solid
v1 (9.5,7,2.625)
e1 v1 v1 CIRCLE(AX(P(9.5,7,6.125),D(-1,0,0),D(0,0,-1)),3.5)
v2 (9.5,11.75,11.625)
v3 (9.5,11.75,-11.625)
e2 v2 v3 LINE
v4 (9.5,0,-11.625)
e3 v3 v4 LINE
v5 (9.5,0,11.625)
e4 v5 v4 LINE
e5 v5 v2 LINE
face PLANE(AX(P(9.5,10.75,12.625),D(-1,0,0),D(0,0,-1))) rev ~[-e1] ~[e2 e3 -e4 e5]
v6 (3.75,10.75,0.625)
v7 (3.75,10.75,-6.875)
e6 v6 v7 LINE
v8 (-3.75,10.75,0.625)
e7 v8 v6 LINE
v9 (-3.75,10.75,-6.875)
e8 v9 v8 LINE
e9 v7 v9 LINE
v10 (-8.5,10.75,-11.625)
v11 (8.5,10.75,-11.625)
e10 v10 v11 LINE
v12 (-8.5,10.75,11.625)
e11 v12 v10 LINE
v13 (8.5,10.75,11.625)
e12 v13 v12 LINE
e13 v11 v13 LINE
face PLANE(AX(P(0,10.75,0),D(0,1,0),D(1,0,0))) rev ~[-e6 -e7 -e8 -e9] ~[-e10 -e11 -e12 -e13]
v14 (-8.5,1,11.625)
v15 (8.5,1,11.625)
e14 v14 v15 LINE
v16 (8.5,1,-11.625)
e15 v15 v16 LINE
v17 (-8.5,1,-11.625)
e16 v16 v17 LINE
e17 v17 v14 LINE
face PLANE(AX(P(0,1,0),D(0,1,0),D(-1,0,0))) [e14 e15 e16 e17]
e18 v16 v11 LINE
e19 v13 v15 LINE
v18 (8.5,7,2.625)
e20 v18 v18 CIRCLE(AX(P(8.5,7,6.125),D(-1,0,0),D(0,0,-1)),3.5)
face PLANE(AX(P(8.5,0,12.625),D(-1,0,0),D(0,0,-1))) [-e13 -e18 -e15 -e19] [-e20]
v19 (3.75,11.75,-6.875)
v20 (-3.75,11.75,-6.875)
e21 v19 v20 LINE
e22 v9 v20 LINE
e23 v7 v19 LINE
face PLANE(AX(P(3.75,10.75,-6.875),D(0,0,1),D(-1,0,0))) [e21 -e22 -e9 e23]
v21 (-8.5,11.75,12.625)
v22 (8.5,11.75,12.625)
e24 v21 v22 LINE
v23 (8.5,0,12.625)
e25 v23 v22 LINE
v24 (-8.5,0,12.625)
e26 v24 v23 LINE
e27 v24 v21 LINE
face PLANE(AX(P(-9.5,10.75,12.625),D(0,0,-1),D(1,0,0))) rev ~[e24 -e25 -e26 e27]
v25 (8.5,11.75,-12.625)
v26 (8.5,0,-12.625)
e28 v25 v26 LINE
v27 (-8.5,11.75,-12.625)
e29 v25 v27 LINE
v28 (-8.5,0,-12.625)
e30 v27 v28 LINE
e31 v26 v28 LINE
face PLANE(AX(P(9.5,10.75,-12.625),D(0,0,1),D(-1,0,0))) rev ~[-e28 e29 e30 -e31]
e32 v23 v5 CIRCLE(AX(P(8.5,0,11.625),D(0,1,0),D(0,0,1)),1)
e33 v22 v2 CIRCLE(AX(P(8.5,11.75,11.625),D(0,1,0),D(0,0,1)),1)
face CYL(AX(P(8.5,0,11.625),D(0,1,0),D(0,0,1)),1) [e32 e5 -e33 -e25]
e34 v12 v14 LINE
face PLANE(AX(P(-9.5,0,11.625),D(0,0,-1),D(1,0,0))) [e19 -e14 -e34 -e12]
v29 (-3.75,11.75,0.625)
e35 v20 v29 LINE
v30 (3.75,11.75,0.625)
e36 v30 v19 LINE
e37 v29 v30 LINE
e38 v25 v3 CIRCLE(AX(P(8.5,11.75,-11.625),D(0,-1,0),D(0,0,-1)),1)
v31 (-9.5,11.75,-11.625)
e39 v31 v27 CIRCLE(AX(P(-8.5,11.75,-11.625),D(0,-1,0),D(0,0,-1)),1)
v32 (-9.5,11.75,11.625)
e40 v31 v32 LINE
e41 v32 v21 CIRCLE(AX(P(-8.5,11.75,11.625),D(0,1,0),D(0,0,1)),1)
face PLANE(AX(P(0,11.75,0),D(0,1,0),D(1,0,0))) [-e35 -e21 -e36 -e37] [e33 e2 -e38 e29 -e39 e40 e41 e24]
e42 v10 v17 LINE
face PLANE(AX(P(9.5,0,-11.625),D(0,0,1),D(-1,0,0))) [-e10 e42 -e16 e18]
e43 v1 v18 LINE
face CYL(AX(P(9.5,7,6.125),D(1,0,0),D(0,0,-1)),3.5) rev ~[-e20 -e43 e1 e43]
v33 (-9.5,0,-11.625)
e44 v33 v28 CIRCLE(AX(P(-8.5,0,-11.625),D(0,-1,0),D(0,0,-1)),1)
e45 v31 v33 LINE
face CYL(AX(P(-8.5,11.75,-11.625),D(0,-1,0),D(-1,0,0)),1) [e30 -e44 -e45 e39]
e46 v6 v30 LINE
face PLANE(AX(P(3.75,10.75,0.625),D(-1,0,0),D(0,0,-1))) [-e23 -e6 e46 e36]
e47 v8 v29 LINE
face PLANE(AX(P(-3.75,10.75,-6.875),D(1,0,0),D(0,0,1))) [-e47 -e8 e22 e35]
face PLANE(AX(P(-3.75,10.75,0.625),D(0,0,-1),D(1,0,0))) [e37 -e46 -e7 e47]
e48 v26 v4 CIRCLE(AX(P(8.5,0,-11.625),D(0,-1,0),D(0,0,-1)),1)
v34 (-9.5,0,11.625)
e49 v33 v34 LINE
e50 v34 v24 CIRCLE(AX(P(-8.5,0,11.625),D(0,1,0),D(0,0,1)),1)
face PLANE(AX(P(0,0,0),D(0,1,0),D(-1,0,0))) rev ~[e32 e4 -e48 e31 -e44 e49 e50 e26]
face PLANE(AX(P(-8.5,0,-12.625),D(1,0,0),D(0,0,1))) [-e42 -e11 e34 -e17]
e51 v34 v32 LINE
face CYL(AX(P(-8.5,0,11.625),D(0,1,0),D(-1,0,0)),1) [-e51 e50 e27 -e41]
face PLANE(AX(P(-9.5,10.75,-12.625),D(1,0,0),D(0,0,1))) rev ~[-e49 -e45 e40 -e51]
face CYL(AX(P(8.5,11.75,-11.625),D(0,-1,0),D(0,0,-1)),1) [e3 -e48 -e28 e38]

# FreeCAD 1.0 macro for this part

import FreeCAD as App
import Part
import Sketcher
from FreeCAD import Vector


def edges_at(feature, points):
    """Names of the edges that pass closest to the given points."""
    edges = feature.Shape.Edges
    near = lambda p: min(range(len(edges)), key=lambda i: edges[i].distToShape(Part.Vertex(*p))[0])
    return sorted({f"Edge{near(p) + 1}" for p in points})


def faces_at(feature, points):
    """Names of the faces that lie closest to the given points."""
    faces = feature.Shape.Faces
    near = lambda p: min(range(len(faces)), key=lambda i: faces[i].distToShape(Part.Vertex(*p))[0])
    return sorted({f"Face{near(p) + 1}" for p in points})


def add_polygon(sketch, points):
    """Adds a closed chain of lines whose ends are joined by coincident constraints."""
    first, n = sketch.GeometryCount, len(points)
    for a, b in zip(points, points[1:] + points[:1]):
        sketch.addGeometry(Part.LineSegment(App.Vector(*a, 0), App.Vector(*b, 0)), False)
    for i in range(n):
        sketch.addConstraint(Sketcher.Constraint("Coincident", first + i, 2, first + (i + 1) % n, 1))

doc = App.newDocument("Part")
params = doc.addObject("Spreadsheet::Sheet", "Params")
for row, (alias, value) in enumerate([
    ("sketch1_width", "19 mm"),
    ("sketch1_height", "25.25 mm"),
    ("pad1_length", "10.75 mm"),
    ("thickness_wall", "1 mm"),
    ("sketch2_diameter", "7 mm"),
    ("pocket1_length", "10.75 mm"),
    ("sketch3_width", "7.5 mm"),
    ("sketch3_width2", "19 mm"),
    ("sketch3_height", "25.25 mm"),
    ("pad2_length", "1 mm"),
    ("fillet_radius", "1 mm"),
], start=1):
    params.set(f"A{row}", alias)
    params.set(f"B{row}", "=" + value)
    params.setAlias(f"B{row}", alias)

body = doc.addObject("PartDesign::Body", "Body")

# Sketch on XZ plane
sketch1 = body.newObject("Sketcher::SketchObject", "Sketch")
sketch1.AttachmentSupport = (doc.getObject("XZ_Plane"), [""])
sketch1.MapMode = "FlatFace"
add_polygon(sketch1, [(10, 13), (10, -13), (-10, -13), (-10, 13)])  # lines 0-3
sketch1.addConstraint(Sketcher.Constraint("Vertical", 0))
sketch1.addConstraint(Sketcher.Constraint("Horizontal", 1))
sketch1.addConstraint(Sketcher.Constraint("Vertical", 2))
sketch1.addConstraint(Sketcher.Constraint("Horizontal", 3))
sketch1.addConstraint(Sketcher.Constraint("Symmetric", 0, 2, 2, 2, -1, 1))
sketch1.addConstraint(Sketcher.Constraint("DistanceX", 1, 2, 1, 1, 19.0))
sketch1.addConstraint(Sketcher.Constraint("DistanceY", 0, 2, 0, 1, 25.25))
sketch1.setExpression("Constraints[9]", "Params.sketch1_width")
sketch1.setExpression("Constraints[10]", "Params.sketch1_height")
pad1 = body.newObject("PartDesign::Pad", "Pad")
pad1.Profile = sketch1
pad1.setExpression("Length", "Params.pad1_length")
pad1.Reversed = True
doc.recompute()

thickness = body.newObject("PartDesign::Thickness", "Thickness")
thickness.Base = (pad1, faces_at(pad1, [(3.167, 10.75, 4.208)]))
thickness.setExpression("Value", "Params.thickness_wall")
thickness.Reversed = True
thickness.Join = "Intersection"

# Sketch on YZ plane
sketch2 = body.newObject("Sketcher::SketchObject", "Sketch001")
sketch2.AttachmentSupport = (doc.getObject("YZ_Plane"), [""])
sketch2.MapMode = "FlatFace"
sketch2.AttachmentOffset = App.Placement(Vector(0, 0, 9.5), App.Rotation())
sketch2.addGeometry(Part.Circle(Vector(7, 6.1, 0), Vector(0, 0, 1), 3.5), False)
sketch2.addConstraint(Sketcher.Constraint("Diameter", 0, 7.0))
sketch2.addConstraint(Sketcher.Constraint("DistanceX", -1, 1, 0, 3, 7.0))
sketch2.addConstraint(Sketcher.Constraint("DistanceY", -1, 1, 0, 3, 6.125))
sketch2.setExpression("Constraints[0]", "Params.sketch2_diameter")
pocket1 = body.newObject("PartDesign::Pocket", "Pocket")
pocket1.Profile = sketch2
pocket1.setExpression("Length", "Params.pocket1_length")

# Sketch on XZ plane
sketch3 = body.newObject("Sketcher::SketchObject", "Sketch002")
sketch3.AttachmentSupport = (doc.getObject("XZ_Plane"), [""])
sketch3.MapMode = "FlatFace"
sketch3.AttachmentOffset = App.Placement(Vector(0, 0, -10.75), App.Rotation())
add_polygon(sketch3, [(-10, -13), (-10, 13), (10, 13), (10, -13)])  # lines 0-3
add_polygon(sketch3, [(-4, -7), (4, -7), (4, 1), (-4, 1)])  # lines 4-7
sketch3.addConstraint(Sketcher.Constraint("Vertical", 0))
sketch3.addConstraint(Sketcher.Constraint("Horizontal", 1))
sketch3.addConstraint(Sketcher.Constraint("Vertical", 2))
sketch3.addConstraint(Sketcher.Constraint("Horizontal", 3))
sketch3.addConstraint(Sketcher.Constraint("Horizontal", 4))
sketch3.addConstraint(Sketcher.Constraint("Vertical", 5))
sketch3.addConstraint(Sketcher.Constraint("Horizontal", 6))
sketch3.addConstraint(Sketcher.Constraint("Vertical", 7))
sketch3.addConstraint(Sketcher.Constraint("Symmetric", 0, 2, 2, 2, -1, 1))
sketch3.addConstraint(Sketcher.Constraint("Equal", 6, 5))
sketch3.addConstraint(Sketcher.Constraint("DistanceX", 4, 1, 4, 2, 7.5))
sketch3.addConstraint(Sketcher.Constraint("DistanceX", 1, 1, 1, 2, 19.0))
sketch3.addConstraint(Sketcher.Constraint("DistanceY", 5, 2, 1, 2, 12.0))
sketch3.addConstraint(Sketcher.Constraint("DistanceY", 0, 1, 0, 2, 25.25))
sketch3.addConstraint(Sketcher.Constraint("DistanceX", -1, 1, 4, 2, 3.75))
sketch3.setExpression("Constraints[18]", "Params.sketch3_width")
sketch3.setExpression("Constraints[19]", "Params.sketch3_width2")
sketch3.setExpression("Constraints[21]", "Params.sketch3_height")
pad2 = body.newObject("PartDesign::Pad", "Pad001")
pad2.Profile = sketch3
pad2.setExpression("Length", "Params.pad2_length")
pad2.Reversed = True
doc.recompute()

fillet = body.newObject("PartDesign::Fillet", "Fillet")
fillet.Base = (pad2, edges_at(pad2, [
    (9.5, 5.875, -12.625),
    (-9.5, 5.875, -12.625),
    (-9.5, 5.875, 12.625),
    (9.5, 5.875, 12.625),
]))
fillet.setExpression("Radius", "Params.fillet_radius")

doc.recompute()
